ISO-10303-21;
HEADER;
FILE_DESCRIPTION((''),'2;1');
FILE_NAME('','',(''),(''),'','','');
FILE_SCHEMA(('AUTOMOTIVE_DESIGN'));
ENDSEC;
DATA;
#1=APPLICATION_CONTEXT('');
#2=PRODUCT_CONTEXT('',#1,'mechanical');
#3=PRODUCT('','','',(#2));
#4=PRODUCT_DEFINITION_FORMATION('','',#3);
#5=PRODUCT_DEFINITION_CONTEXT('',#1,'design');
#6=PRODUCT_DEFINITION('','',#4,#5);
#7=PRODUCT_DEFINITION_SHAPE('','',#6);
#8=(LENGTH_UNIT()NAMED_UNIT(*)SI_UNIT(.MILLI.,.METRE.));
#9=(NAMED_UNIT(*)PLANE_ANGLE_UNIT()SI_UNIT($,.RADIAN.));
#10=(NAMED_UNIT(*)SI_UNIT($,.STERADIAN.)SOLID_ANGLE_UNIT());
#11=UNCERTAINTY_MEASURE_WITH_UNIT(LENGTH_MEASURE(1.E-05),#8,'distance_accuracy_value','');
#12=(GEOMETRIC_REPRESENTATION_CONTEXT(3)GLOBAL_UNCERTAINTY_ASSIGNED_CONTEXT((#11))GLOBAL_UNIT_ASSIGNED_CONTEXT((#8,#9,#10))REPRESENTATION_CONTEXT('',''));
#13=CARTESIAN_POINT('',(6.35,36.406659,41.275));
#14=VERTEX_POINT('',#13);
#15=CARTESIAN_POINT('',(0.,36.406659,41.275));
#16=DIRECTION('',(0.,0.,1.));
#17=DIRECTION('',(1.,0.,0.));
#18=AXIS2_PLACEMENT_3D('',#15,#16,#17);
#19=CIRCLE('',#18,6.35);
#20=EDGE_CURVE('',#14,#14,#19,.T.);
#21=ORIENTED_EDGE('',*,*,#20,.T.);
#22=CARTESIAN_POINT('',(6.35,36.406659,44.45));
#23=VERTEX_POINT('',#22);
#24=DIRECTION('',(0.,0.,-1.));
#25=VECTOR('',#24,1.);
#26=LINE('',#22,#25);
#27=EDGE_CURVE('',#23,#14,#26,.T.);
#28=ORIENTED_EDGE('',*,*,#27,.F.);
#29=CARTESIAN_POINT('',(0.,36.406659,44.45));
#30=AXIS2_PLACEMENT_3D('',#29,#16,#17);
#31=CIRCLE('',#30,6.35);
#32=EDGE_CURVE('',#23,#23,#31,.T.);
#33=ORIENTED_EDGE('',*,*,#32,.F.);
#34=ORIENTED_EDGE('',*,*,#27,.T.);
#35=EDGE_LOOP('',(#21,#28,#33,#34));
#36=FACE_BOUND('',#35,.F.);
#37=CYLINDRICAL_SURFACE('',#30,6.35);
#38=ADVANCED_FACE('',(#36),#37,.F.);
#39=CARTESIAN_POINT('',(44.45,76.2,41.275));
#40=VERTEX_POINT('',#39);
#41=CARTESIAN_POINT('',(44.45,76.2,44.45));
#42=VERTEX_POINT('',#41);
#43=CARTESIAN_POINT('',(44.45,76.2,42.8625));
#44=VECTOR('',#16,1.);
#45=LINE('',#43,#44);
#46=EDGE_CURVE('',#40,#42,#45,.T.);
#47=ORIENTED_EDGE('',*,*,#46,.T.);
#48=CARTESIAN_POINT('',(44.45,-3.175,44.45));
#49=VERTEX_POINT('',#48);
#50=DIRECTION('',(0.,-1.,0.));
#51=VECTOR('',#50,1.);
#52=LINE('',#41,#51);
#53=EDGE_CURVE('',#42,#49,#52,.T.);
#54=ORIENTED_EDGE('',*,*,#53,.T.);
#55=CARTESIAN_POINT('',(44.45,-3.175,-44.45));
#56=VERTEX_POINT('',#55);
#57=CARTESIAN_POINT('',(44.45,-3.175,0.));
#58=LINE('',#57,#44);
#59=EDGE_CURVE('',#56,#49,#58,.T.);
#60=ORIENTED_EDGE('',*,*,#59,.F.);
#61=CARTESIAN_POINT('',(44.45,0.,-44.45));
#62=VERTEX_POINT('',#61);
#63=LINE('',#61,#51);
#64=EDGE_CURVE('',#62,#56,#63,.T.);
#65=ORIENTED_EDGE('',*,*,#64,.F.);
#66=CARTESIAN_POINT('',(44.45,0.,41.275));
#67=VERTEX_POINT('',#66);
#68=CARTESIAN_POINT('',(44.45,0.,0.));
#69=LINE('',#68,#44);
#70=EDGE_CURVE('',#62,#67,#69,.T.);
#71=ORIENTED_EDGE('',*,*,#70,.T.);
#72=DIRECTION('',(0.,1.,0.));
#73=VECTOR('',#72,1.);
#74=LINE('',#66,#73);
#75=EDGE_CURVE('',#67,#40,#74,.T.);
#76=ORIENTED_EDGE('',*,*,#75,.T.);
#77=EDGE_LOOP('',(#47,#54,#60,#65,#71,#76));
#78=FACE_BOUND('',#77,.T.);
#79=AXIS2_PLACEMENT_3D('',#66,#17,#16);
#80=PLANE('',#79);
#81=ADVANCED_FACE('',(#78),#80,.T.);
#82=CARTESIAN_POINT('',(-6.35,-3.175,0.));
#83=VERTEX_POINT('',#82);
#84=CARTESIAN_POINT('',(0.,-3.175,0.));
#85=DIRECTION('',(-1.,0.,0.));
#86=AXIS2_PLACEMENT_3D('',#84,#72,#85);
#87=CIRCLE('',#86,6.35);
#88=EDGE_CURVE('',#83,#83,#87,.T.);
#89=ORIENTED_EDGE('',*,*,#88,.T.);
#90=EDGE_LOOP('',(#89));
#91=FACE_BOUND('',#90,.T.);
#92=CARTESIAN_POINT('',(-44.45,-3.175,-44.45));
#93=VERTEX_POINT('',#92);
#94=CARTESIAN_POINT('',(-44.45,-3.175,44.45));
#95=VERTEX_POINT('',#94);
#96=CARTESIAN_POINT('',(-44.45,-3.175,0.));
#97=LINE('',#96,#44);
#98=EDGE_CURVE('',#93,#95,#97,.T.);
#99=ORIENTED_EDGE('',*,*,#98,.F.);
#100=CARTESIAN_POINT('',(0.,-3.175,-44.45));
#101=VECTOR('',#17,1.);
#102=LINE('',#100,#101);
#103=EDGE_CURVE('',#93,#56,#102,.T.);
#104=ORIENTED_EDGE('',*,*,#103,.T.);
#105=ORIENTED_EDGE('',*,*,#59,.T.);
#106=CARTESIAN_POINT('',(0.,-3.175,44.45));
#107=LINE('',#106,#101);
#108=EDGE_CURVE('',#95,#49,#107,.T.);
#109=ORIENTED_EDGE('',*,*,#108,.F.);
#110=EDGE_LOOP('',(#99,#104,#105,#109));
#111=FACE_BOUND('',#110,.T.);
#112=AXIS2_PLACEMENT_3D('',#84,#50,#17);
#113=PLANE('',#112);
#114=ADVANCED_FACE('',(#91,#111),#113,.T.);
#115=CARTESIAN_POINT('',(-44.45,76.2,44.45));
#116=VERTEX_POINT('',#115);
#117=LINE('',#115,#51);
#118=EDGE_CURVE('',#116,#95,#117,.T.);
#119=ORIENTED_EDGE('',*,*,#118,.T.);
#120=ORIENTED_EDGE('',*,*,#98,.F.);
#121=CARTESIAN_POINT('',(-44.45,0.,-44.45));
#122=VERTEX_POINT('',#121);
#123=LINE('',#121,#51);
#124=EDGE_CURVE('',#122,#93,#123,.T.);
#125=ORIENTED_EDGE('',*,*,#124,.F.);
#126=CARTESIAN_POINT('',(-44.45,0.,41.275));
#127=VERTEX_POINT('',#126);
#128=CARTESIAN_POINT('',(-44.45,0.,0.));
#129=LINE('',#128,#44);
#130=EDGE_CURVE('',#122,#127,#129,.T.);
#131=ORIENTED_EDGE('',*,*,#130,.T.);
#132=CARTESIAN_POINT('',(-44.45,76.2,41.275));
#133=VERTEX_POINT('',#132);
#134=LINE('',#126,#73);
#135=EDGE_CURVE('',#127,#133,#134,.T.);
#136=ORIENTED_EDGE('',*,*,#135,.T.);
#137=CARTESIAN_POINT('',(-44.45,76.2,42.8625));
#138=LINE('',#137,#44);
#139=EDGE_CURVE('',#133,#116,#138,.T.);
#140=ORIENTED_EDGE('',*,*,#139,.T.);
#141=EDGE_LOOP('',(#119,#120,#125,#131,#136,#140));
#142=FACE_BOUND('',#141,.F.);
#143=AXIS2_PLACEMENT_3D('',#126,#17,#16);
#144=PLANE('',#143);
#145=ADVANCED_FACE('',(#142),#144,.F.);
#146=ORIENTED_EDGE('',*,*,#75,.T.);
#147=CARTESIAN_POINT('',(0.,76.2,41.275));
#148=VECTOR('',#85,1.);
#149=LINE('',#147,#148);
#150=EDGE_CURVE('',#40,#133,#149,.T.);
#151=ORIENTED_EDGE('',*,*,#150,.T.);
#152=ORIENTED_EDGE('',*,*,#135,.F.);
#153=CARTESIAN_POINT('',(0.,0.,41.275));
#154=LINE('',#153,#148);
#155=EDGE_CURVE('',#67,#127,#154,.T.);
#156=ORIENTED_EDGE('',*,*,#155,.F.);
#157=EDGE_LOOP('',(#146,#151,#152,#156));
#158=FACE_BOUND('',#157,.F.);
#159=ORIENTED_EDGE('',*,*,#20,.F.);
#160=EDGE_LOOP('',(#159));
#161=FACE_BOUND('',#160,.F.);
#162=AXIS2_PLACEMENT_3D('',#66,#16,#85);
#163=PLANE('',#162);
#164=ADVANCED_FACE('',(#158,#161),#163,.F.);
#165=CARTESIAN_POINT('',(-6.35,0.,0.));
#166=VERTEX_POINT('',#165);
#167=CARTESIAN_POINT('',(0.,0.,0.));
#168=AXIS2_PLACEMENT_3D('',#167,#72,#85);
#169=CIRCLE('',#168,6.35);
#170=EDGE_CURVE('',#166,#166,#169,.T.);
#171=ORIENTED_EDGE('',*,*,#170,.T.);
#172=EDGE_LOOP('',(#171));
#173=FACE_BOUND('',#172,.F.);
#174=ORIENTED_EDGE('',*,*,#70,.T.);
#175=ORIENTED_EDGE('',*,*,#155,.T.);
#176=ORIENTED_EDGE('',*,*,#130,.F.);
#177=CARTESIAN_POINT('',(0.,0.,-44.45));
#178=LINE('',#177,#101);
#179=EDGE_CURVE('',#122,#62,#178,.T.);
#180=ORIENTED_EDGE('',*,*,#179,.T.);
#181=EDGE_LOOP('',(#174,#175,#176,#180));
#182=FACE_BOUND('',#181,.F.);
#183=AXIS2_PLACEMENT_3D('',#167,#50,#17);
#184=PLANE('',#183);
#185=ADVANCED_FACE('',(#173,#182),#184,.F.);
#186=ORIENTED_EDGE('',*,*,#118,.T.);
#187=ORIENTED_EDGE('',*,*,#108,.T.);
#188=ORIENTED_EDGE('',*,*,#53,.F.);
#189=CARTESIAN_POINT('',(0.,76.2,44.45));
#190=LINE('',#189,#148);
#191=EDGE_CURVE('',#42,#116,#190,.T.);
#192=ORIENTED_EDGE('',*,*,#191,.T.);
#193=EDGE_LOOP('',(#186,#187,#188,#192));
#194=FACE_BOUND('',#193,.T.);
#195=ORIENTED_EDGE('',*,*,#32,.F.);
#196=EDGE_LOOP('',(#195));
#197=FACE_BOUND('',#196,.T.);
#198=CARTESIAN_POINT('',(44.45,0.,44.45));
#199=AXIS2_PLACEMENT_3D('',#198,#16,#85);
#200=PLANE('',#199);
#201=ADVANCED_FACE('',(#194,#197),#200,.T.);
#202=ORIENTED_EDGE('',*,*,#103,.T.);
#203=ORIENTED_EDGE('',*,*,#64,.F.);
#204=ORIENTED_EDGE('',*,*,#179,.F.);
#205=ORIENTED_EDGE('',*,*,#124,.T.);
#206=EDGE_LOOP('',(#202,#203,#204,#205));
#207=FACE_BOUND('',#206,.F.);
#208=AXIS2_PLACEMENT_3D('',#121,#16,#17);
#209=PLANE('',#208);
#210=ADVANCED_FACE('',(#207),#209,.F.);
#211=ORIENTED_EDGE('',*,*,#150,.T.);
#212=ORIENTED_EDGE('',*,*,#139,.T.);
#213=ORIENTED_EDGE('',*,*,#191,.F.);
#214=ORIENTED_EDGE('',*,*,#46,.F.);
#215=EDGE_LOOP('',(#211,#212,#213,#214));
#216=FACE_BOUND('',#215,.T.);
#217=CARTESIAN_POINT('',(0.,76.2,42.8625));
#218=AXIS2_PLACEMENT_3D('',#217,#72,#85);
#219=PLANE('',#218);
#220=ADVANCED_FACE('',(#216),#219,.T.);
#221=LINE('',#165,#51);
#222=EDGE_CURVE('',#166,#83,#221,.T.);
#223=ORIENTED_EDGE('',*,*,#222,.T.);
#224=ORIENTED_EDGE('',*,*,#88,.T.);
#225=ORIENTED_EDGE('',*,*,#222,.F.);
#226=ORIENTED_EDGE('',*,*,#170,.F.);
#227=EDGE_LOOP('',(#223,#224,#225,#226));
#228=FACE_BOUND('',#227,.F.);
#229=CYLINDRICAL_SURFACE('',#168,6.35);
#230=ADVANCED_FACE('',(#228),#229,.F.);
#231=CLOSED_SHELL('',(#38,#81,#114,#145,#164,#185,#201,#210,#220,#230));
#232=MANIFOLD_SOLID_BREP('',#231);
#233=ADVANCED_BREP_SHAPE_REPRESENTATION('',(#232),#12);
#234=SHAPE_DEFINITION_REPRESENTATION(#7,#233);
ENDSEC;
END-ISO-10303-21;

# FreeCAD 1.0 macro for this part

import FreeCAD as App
import Part
import Sketcher
from FreeCAD import Vector
Q = App.Units.Quantity


def add_polygon(sketch, points):
    """Adds a closed chain of lines whose ends are joined by coincident constraints."""
    first, n = sketch.GeometryCount, len(points)
    for a, b in zip(points, points[1:] + points[:1]):
        sketch.addGeometry(Part.LineSegment(App.Vector(*a, 0), App.Vector(*b, 0)), False)
    for i in range(n):
        sketch.addConstraint(Sketcher.Constraint("Coincident", first + i, 2, first + (i + 1) % n, 1))

doc = App.newDocument("Part")
body = doc.addObject("PartDesign::Body", "Body")

sketch1 = doc.addObject("Sketcher::SketchObject", "Sketch")
body.addObject(sketch1)
sketch1.AttachmentSupport = (doc.XZ_Plane, [""])
sketch1.MapMode = "FlatFace"
add_polygon(sketch1, [(-44, 44), (-44, -44), (44, -44), (44, 44)])
sketch1.addConstraint(Sketcher.Constraint("Vertical", 0))
sketch1.addConstraint(Sketcher.Constraint("Horizontal", 1))
sketch1.addConstraint(Sketcher.Constraint("Vertical", 2))
sketch1.addConstraint(Sketcher.Constraint("Horizontal", 3))
sketch1.addConstraint(Sketcher.Constraint("Symmetric", 0, 2, 2, 2, -1, 1))
sketch1.addConstraint(Sketcher.Constraint("Equal", 3, 0))
sketch1.addConstraint(Sketcher.Constraint("DistanceX", 1, 1, 1, 2, Q("3.5 in")))
pad1 = doc.addObject("PartDesign::Pad", "Pad")
body.addObject(pad1)
pad1.Profile = sketch1
pad1.Length = Q("0.125 in")

sketch2 = doc.addObject("Sketcher::SketchObject", "Sketch001")
body.addObject(sketch2)
sketch2.AttachmentSupport = (doc.XZ_Plane, [""])
sketch2.MapMode = "FlatFace"
add_polygon(sketch2, [(44.5, 44.5), (44.5, 41.3), (-44.5, 41.3), (-44.5, 44.5)])
sketch2.addConstraint(Sketcher.Constraint("Vertical", 0))
sketch2.addConstraint(Sketcher.Constraint("Horizontal", 1))
sketch2.addConstraint(Sketcher.Constraint("Vertical", 2))
sketch2.addConstraint(Sketcher.Constraint("Horizontal", 3))
sketch2.addConstraint(Sketcher.Constraint("DistanceX", 1, 2, 1, 1, Q("3.5 in")))
sketch2.addConstraint(Sketcher.Constraint("DistanceY", 0, 2, 0, 1, Q("0.125 in")))
sketch2.addConstraint(Sketcher.Constraint("DistanceX", -1, 1, 0, 2, Q("1.75 in")))
sketch2.addConstraint(Sketcher.Constraint("DistanceY", -1, 1, 2, 2, Q("1.75 in")))
pad2 = doc.addObject("PartDesign::Pad", "Pad001")
body.addObject(pad2)
pad2.Profile = sketch2
pad2.Length = Q("3 in")
pad2.Reversed = True

sketch3 = doc.addObject("Sketcher::SketchObject", "Sketch002")
body.addObject(sketch3)
sketch3.AttachmentSupport = (doc.XZ_Plane, [""])
sketch3.MapMode = "FlatFace"
sketch3.addGeometry(Part.Circle(Vector(0, 0, 0), Vector(0, 0, 1), 6), False)
sketch3.addConstraint(Sketcher.Constraint("Coincident", 0, 3, -1, 1))
sketch3.addConstraint(Sketcher.Constraint("Diameter", 0, Q("0.5 in")))
pocket1 = doc.addObject("PartDesign::Pocket", "Pocket")
body.addObject(pocket1)
pocket1.Profile = sketch3
pocket1.Length = Q("0.125 in")
pocket1.Reversed = True

sketch4 = doc.addObject("Sketcher::SketchObject", "Sketch003")
body.addObject(sketch4)
sketch4.AttachmentSupport = (doc.XY_Plane, [""])
sketch4.MapMode = "FlatFace"
sketch4.AttachmentOffset = App.Placement(Vector(0, 0, 1.75 * 25.4), App.Rotation())
sketch4.addGeometry(Part.Circle(Vector(0, 36, 0), Vector(0, 0, 1), 6), False)
sketch4.addConstraint(Sketcher.Constraint("PointOnObject", 0, 3, -2))
sketch4.addConstraint(Sketcher.Constraint("Diameter", 0, Q("0.5 in")))
sketch4.addConstraint(Sketcher.Constraint("DistanceY", -1, 1, 0, 3, 36.406659))
pocket2 = doc.addObject("PartDesign::Pocket", "Pocket001")
body.addObject(pocket2)
pocket2.Profile = sketch4
pocket2.Length = Q("0.125 in")

doc.recompute()
